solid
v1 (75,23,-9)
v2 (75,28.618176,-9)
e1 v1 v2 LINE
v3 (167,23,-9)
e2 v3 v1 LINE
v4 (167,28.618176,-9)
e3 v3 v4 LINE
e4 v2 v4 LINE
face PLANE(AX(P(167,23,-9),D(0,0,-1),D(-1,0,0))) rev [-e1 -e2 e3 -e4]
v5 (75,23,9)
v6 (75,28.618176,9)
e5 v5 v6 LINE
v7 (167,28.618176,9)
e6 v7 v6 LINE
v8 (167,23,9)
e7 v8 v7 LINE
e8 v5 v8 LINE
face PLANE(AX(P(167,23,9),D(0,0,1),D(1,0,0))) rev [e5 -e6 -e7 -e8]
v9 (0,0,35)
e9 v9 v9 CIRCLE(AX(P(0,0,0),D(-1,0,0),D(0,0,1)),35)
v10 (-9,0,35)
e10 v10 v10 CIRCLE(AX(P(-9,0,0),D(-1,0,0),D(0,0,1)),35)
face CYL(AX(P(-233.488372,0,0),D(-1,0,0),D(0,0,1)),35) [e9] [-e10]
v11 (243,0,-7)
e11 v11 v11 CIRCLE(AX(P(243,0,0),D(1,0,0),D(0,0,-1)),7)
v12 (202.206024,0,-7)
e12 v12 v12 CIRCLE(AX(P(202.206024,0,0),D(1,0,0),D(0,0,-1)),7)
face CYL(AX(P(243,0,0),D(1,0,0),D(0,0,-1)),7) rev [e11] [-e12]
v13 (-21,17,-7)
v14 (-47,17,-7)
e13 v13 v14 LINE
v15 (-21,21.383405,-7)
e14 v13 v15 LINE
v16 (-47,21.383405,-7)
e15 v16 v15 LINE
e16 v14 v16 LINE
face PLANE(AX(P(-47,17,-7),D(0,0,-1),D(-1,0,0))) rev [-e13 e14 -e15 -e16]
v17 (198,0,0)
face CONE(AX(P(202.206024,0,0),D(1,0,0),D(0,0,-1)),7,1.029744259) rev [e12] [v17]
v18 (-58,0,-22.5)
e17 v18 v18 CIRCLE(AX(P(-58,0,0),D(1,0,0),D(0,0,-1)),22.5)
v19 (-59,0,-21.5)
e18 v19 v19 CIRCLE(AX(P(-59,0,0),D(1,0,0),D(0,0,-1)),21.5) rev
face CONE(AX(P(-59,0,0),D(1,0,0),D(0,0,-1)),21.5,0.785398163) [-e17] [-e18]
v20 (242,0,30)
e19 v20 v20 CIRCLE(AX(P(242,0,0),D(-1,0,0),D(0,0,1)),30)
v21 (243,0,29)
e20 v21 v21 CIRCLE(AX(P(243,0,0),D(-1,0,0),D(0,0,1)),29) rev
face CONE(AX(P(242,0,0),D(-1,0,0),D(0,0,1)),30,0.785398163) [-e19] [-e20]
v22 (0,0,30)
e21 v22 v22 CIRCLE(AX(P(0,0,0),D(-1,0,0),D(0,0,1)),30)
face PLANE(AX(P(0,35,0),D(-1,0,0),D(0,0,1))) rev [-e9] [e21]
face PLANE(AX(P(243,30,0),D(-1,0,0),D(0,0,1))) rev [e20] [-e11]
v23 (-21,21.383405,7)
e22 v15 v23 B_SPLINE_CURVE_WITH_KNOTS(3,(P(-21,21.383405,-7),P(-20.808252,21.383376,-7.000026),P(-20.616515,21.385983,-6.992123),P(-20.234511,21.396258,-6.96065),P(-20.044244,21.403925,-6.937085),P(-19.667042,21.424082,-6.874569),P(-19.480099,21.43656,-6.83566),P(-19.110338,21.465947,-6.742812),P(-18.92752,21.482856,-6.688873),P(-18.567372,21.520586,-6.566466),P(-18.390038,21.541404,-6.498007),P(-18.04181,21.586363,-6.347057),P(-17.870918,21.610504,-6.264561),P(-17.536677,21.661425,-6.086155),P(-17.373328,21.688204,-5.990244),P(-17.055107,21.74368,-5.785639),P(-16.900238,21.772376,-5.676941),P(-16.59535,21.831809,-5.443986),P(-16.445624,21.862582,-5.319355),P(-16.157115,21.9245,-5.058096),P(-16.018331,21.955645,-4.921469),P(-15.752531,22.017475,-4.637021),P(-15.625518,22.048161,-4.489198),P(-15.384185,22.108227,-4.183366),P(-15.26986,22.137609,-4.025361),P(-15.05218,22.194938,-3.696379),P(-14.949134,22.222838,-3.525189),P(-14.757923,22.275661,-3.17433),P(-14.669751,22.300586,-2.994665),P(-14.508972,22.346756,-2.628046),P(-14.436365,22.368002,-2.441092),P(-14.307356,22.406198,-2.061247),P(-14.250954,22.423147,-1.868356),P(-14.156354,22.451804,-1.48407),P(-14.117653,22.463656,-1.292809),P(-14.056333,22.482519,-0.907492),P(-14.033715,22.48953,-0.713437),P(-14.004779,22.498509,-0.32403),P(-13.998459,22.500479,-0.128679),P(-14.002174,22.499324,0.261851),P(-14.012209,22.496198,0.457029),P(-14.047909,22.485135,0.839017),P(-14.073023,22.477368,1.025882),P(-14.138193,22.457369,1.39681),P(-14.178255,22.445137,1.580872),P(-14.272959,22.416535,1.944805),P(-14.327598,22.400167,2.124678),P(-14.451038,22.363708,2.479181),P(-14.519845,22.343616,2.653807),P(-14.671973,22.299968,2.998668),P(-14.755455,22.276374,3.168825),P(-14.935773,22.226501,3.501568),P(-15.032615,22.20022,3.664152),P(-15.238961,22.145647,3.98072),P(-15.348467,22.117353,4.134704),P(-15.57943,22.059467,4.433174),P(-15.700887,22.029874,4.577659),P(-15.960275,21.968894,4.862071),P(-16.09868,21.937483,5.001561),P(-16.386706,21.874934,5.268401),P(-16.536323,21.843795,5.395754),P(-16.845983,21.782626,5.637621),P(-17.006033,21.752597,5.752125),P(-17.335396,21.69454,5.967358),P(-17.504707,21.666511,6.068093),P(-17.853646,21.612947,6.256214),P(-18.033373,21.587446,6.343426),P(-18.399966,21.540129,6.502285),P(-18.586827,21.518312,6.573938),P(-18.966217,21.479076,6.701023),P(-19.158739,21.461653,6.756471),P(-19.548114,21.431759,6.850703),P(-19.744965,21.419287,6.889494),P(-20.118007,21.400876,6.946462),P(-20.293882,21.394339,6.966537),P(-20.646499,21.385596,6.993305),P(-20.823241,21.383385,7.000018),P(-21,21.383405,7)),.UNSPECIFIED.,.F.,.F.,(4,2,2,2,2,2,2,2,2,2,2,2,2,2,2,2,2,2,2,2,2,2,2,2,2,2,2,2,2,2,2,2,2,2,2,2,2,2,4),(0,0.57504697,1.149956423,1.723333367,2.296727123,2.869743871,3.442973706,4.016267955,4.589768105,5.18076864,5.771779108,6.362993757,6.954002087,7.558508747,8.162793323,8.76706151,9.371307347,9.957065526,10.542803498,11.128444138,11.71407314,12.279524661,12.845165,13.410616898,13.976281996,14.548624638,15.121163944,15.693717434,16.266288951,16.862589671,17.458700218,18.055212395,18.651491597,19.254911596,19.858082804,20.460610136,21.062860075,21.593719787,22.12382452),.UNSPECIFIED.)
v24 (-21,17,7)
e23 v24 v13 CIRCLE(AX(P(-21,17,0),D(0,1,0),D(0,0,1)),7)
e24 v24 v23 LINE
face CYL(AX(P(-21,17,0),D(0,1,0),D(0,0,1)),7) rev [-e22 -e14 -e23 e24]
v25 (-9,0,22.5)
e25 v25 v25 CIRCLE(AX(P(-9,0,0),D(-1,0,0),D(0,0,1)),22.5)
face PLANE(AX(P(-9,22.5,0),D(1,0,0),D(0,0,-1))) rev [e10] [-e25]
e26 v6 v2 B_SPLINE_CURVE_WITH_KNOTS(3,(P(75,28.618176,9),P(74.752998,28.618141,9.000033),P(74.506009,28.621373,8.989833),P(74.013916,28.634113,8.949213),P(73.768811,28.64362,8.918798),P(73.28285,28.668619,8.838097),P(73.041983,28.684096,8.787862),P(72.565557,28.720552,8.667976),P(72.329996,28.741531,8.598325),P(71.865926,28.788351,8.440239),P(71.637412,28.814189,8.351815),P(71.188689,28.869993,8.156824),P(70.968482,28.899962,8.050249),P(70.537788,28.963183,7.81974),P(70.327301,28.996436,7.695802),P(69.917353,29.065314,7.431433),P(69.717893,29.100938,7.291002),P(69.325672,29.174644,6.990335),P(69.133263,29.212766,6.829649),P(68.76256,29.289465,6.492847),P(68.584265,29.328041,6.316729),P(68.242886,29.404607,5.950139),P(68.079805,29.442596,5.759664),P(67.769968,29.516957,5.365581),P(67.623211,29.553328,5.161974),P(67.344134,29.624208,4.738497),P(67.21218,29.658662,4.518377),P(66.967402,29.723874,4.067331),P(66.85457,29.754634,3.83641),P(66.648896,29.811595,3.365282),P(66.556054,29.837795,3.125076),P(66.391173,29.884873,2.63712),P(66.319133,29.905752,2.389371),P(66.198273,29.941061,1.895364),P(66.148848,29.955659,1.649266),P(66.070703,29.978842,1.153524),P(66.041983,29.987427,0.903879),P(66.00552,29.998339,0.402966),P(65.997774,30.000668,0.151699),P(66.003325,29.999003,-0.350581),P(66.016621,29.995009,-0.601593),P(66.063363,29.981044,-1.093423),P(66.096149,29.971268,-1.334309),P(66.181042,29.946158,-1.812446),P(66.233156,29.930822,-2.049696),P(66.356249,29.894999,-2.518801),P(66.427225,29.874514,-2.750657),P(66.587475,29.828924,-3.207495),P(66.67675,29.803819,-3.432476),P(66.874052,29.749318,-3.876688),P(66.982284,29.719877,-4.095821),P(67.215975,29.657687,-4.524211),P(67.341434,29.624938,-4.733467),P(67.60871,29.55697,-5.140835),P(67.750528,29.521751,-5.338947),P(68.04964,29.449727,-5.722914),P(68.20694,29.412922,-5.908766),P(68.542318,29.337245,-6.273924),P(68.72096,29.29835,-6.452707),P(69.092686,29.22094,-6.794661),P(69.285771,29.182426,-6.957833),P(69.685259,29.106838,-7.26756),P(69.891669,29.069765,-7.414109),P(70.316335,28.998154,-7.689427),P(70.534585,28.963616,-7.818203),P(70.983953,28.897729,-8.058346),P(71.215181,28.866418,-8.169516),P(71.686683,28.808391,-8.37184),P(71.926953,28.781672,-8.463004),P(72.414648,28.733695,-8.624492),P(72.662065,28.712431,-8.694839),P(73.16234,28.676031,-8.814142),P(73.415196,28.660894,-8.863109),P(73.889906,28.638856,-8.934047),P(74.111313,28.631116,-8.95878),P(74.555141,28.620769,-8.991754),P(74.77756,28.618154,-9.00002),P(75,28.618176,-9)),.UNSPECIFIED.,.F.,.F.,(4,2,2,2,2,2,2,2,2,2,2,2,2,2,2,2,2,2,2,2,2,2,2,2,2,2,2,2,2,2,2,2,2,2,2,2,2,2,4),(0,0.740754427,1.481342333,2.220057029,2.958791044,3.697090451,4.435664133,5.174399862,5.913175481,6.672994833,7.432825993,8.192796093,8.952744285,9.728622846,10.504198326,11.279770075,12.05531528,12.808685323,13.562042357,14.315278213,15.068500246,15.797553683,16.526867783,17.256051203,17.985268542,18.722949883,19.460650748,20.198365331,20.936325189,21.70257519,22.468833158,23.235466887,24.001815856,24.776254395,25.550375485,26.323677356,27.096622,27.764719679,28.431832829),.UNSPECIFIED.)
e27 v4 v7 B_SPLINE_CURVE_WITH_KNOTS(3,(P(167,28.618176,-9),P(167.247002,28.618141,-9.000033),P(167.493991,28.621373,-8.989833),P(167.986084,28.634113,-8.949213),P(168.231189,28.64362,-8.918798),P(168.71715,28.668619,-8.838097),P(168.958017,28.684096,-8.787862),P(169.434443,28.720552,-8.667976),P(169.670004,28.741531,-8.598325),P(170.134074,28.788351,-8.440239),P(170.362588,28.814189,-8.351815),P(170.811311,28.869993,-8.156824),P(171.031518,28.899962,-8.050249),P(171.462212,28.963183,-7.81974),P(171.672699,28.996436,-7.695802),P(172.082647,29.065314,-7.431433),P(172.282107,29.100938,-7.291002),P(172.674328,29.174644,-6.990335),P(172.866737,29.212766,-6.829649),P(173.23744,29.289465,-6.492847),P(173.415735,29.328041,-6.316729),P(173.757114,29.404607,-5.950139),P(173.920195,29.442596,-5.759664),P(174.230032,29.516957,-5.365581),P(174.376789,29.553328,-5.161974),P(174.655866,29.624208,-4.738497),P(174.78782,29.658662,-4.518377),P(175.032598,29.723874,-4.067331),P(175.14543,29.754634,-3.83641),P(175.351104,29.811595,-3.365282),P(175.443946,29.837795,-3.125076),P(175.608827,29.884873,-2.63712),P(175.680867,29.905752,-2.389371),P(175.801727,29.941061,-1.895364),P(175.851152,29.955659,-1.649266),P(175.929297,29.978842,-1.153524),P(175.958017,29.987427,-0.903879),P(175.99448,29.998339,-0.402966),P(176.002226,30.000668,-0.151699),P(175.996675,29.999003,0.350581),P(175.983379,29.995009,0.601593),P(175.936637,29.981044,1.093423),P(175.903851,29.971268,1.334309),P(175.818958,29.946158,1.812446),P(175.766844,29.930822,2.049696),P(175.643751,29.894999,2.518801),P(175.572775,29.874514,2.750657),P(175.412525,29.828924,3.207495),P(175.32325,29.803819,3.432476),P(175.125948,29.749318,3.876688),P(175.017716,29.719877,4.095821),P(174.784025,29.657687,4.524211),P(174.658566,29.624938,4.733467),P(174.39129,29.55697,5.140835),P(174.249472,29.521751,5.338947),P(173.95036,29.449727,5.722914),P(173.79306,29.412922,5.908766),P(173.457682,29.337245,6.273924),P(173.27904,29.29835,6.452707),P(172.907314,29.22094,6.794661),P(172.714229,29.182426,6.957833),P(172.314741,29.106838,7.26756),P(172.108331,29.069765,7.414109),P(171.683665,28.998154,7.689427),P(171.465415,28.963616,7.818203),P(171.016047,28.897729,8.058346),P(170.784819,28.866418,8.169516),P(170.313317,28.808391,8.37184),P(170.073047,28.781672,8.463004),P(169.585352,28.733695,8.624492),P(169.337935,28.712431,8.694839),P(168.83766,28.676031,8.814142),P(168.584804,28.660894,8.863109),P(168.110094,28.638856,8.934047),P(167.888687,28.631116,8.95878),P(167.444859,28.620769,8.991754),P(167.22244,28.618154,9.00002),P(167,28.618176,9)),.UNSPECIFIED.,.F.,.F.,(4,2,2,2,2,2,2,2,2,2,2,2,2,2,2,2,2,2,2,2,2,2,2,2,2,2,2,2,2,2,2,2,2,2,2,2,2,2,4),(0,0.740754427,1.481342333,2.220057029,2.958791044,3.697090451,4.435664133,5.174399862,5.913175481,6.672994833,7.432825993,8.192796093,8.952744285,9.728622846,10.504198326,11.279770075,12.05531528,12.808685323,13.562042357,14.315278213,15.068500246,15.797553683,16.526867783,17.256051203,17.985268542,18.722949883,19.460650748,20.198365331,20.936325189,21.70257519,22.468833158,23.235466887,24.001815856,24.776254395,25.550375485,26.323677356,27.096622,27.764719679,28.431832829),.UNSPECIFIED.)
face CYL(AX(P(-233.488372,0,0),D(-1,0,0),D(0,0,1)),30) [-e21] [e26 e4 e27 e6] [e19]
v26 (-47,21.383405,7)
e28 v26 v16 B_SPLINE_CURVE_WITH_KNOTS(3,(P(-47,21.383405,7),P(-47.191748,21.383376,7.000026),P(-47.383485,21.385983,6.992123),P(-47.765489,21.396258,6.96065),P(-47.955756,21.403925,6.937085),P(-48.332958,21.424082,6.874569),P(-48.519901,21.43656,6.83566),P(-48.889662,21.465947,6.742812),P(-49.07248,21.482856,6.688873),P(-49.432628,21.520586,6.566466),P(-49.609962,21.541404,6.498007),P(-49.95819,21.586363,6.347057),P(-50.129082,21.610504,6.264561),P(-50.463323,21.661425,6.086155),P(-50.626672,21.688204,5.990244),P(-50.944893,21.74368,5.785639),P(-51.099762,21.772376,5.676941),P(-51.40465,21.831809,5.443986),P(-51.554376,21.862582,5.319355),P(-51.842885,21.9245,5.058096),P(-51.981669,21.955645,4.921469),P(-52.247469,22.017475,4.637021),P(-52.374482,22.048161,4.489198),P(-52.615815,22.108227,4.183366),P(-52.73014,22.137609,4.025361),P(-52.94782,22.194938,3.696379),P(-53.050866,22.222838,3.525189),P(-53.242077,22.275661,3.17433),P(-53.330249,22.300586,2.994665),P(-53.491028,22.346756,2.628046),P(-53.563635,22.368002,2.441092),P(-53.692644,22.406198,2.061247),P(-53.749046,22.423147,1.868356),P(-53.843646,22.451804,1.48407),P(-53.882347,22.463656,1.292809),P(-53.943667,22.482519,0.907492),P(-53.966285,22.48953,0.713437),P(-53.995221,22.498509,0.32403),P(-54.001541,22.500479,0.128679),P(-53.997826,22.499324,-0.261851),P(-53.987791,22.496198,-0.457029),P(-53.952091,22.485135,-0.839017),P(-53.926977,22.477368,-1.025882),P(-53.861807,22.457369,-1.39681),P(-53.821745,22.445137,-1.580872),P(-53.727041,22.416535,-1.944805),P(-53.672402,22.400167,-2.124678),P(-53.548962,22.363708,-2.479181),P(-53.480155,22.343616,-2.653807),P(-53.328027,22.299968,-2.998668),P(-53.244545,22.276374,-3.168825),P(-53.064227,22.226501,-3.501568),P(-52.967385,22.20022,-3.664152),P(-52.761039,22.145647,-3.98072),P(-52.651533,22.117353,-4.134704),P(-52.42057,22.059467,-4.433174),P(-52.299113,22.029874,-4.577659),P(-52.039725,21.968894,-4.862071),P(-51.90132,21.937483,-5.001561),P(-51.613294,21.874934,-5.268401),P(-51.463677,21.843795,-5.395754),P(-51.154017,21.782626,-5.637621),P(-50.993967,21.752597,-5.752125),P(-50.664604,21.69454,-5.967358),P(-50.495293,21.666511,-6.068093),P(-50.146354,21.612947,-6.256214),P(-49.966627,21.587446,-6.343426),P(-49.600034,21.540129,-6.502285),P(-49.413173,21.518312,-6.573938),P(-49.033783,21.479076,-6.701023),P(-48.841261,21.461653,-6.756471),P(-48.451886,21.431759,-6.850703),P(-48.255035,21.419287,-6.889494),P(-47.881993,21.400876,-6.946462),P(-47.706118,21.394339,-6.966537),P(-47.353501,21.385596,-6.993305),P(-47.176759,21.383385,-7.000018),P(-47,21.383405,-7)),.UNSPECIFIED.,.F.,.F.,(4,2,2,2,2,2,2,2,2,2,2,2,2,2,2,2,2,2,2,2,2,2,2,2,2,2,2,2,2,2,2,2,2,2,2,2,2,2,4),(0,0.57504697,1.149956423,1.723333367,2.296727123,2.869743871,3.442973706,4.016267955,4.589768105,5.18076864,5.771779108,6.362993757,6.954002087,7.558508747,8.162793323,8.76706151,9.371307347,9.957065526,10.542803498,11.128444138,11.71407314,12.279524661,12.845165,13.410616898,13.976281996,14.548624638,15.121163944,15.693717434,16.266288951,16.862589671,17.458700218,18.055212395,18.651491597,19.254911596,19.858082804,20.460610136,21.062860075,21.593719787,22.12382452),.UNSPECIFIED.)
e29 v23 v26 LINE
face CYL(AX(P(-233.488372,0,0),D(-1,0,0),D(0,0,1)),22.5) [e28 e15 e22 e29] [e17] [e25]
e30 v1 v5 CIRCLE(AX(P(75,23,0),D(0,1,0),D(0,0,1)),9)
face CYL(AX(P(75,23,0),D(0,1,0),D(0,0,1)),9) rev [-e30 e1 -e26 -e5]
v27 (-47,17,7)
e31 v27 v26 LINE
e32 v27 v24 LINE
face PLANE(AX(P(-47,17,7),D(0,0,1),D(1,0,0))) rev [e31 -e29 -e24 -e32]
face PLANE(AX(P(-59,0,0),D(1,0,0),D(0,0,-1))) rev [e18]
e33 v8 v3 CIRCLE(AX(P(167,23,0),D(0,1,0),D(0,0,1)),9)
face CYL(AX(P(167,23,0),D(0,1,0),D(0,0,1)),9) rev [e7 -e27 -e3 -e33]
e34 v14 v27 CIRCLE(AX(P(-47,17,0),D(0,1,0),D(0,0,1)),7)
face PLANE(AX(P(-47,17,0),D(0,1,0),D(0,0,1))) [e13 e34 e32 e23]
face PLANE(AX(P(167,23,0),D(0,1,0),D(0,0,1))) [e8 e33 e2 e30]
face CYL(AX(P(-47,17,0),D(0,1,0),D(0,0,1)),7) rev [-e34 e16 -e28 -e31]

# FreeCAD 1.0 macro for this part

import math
import FreeCAD as App
import Part
import Sketcher


def edges_at(feature, points):
    """Names of the edges that pass closest to the given points."""
    edges = feature.Shape.Edges
    near = lambda p: min(range(len(edges)), key=lambda i: edges[i].distToShape(Part.Vertex(*p))[0])
    return sorted({f"Edge{near(p) + 1}" for p in points})

doc = App.newDocument("Part")
body = doc.addObject("PartDesign::Body", "Body")

# Sketch on XY plane
sketch1 = body.newObject("Sketcher::SketchObject", "Sketch")
sketch1.AttachmentSupport = (doc.getObject("XY_Plane"), [""])
sketch1.MapMode = "FlatFace"
sketch1.addGeometry([
    Part.LineSegment(App.Vector(-59, 22, 0), App.Vector(-59, 0, 0)),  # 0
    Part.LineSegment(App.Vector(-59, 0, 0), App.Vector(243, 0, 0)),  # 1
    Part.LineSegment(App.Vector(243, 0, 0), App.Vector(243, 30, 0)),  # 2
    Part.LineSegment(App.Vector(243, 30, 0), App.Vector(0, 30, 0)),  # 3
    Part.LineSegment(App.Vector(0, 30, 0), App.Vector(0, 35, 0)),  # 4
    Part.LineSegment(App.Vector(0, 35, 0), App.Vector(-9, 35, 0)),  # 5
    Part.LineSegment(App.Vector(-9, 35, 0), App.Vector(-9, 22, 0)),  # 6
    Part.LineSegment(App.Vector(-9, 22, 0), App.Vector(-59, 22, 0)),  # 7
], False)
sketch1.addConstraint([
    Sketcher.Constraint("Coincident", 0, 2, 1, 1),
    Sketcher.Constraint("Coincident", 1, 2, 2, 1),
    Sketcher.Constraint("Coincident", 2, 2, 3, 1),
    Sketcher.Constraint("Coincident", 3, 2, 4, 1),
    Sketcher.Constraint("Coincident", 4, 2, 5, 1),
    Sketcher.Constraint("Coincident", 5, 2, 6, 1),
    Sketcher.Constraint("Coincident", 6, 2, 7, 1),
    Sketcher.Constraint("Coincident", 7, 2, 0, 1),
    Sketcher.Constraint("Vertical", 0),
    Sketcher.Constraint("Horizontal", 1),
    Sketcher.Constraint("Vertical", 2),
    Sketcher.Constraint("Horizontal", 3),
    Sketcher.Constraint("Vertical", 4),
    Sketcher.Constraint("Horizontal", 5),
    Sketcher.Constraint("Vertical", 6),
    Sketcher.Constraint("Horizontal", 7),
    Sketcher.Constraint("PointOnObject", 0, 2, -1),
    Sketcher.Constraint("PointOnObject", 3, 2, -2),
    Sketcher.Constraint("DistanceX", 1, 1, 1, 2, 302.0),
    Sketcher.Constraint("DistanceX", 3, 2, 3, 1, 243.0),
    Sketcher.Constraint("DistanceX", 5, 2, 5, 1, 9.0),
    Sketcher.Constraint("DistanceY", 2, 1, 2, 2, 30.0),
    Sketcher.Constraint("DistanceY", 4, 1, 4, 2, 5.0),
    Sketcher.Constraint("DistanceY", 0, 2, 0, 1, 22.5),
])
revolution = body.newObject("PartDesign::Revolution", "Revolution")
revolution.Profile = sketch1
revolution.ReferenceAxis = (sketch1, ["H_Axis"])
revolution.Angle = 360
doc.recompute()

chamfer = body.newObject("PartDesign::Chamfer", "Chamfer")
chamfer.Base = (revolution, edges_at(revolution, [(243, 0, -30), (-59, 0, -22.5)]))
chamfer.Size = 1

# Sketch on YZ plane
sketch2 = body.newObject("Sketcher::SketchObject", "Sketch001")
sketch2.AttachmentSupport = (doc.getObject("YZ_Plane"), [""])
sketch2.MapMode = "FlatFace"
sketch2.AttachmentOffset = App.Placement(App.Vector(0, 0, 243), App.Rotation())
sketch2.addGeometry(Part.Circle(App.Vector(0, 0, 0), App.Vector(0, 0, 1), 7), False)
sketch2.addConstraint([
    Sketcher.Constraint("Coincident", 0, 3, -1, 1),
    Sketcher.Constraint("Diameter", 0, 14.0),
])
doc.recompute()
hole = body.newObject("PartDesign::Hole", "Hole")
hole.Profile = sketch2
hole.ThreadType = "None"
hole.Diameter = 14
hole.DepthType = "Dimension"
hole.Depth = 40.793976
hole.DrillPoint = "Angled"
hole.DrillPointAngle = 118

# Sketch on XZ plane
sketch3 = body.newObject("Sketcher::SketchObject", "Sketch002")
sketch3.AttachmentSupport = (doc.getObject("XZ_Plane"), [""])
sketch3.MapMode = "FlatFace"
sketch3.AttachmentOffset = App.Placement(App.Vector(0, 0, -30), App.Rotation())
sketch3.addGeometry([
    Part.LineSegment(App.Vector(75, 9, 0), App.Vector(167, 9, 0)),
    Part.ArcOfCircle(Part.Circle(App.Vector(167, 0, 0), App.Vector(0, 0, 1), 9), math.radians(-90), math.radians(90)),
    Part.LineSegment(App.Vector(167, -9, 0), App.Vector(75, -9, 0)),
    Part.ArcOfCircle(Part.Circle(App.Vector(75, 0, 0), App.Vector(0, 0, 1), 9), math.radians(90), math.radians(270)),
], False)
sketch3.addConstraint([
    Sketcher.Constraint("Tangent", 0, 2, 1, 2),
    Sketcher.Constraint("Tangent", 1, 1, 2, 1),
    Sketcher.Constraint("Tangent", 2, 2, 3, 2),
    Sketcher.Constraint("Tangent", 3, 1, 0, 1),
    Sketcher.Constraint("Horizontal", 0),
    Sketcher.Constraint("Horizontal", 2),
    Sketcher.Constraint("PointOnObject", 1, 3, -1),
    Sketcher.Constraint("Radius", 1, 9.0),
    Sketcher.Constraint("DistanceX", 0, 1, 0, 2, 92.0),
    Sketcher.Constraint("DistanceX", -1, 1, 1, 3, 167.0),
])
pocket1 = body.newObject("PartDesign::Pocket", "Pocket")
pocket1.Profile = sketch3
pocket1.Length = 7
pocket1.Reversed = True

# Sketch on XZ plane
sketch4 = body.newObject("Sketcher::SketchObject", "Sketch003")
sketch4.AttachmentSupport = (doc.getObject("XZ_Plane"), [""])
sketch4.MapMode = "FlatFace"
sketch4.AttachmentOffset = App.Placement(App.Vector(0, 0, -22.5), App.Rotation())
sketch4.addGeometry([
    Part.LineSegment(App.Vector(-21, -7, 0), App.Vector(-47, -7, 0)),
    Part.ArcOfCircle(Part.Circle(App.Vector(-47, 0, 0), App.Vector(0, 0, 1), 7), math.radians(90), math.radians(270)),
    Part.LineSegment(App.Vector(-47, 7, 0), App.Vector(-21, 7, 0)),
    Part.ArcOfCircle(Part.Circle(App.Vector(-21, 0, 0), App.Vector(0, 0, 1), 7), math.radians(-90), math.radians(90)),
], False)
sketch4.addConstraint([
    Sketcher.Constraint("Tangent", 0, 2, 1, 2),
    Sketcher.Constraint("Tangent", 1, 1, 2, 1),
    Sketcher.Constraint("Tangent", 2, 2, 3, 2),
    Sketcher.Constraint("Tangent", 3, 1, 0, 1),
    Sketcher.Constraint("Horizontal", 0),
    Sketcher.Constraint("Horizontal", 2),
    Sketcher.Constraint("PointOnObject", 1, 3, -1),
    Sketcher.Constraint("Radius", 1, 7.0),
    Sketcher.Constraint("DistanceX", 0, 2, 0, 1, 26.0),
    Sketcher.Constraint("DistanceX", 1, 3, -1, 1, 47.0),
])
pocket2 = body.newObject("PartDesign::Pocket", "Pocket001")
pocket2.Profile = sketch4
pocket2.Length = 5.5
pocket2.Reversed = True

doc.recompute()
